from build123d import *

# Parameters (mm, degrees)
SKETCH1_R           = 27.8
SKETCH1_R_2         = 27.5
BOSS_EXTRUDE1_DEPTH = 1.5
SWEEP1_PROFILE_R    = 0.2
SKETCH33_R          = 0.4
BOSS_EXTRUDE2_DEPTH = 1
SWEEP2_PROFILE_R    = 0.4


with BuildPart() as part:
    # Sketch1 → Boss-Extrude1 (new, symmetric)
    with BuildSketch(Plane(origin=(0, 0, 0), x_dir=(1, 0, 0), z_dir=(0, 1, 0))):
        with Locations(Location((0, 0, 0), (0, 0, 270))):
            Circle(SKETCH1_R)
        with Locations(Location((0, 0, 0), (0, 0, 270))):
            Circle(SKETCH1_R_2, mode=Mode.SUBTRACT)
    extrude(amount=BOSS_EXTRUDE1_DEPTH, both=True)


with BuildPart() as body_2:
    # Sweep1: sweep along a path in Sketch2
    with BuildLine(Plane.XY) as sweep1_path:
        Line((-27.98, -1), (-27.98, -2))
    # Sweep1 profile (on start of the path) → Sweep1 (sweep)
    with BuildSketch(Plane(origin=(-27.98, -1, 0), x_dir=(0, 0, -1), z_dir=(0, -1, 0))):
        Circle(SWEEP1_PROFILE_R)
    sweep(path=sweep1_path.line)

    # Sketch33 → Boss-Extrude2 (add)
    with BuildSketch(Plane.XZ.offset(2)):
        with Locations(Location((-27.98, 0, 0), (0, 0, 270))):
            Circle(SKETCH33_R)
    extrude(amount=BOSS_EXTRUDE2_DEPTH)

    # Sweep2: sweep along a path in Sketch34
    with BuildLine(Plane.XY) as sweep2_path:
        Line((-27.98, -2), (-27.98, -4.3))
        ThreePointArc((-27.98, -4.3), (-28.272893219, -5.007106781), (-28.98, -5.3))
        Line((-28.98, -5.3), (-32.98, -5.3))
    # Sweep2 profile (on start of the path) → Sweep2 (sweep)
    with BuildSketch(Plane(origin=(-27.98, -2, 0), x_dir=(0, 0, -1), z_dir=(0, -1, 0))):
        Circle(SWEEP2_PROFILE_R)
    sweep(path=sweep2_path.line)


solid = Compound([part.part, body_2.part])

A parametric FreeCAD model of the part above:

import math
import FreeCAD as App
import Part
import Sketcher
from FreeCAD import Vector

doc = App.newDocument("Part")
body = doc.addObject("PartDesign::Body", "Body")

# Sketch on XZ plane
sketch1 = body.newObject("Sketcher::SketchObject", "Sketch")
sketch1.AttachmentSupport = (doc.getObject("XZ_Plane"), [""])
sketch1.MapMode = "FlatFace"
sketch1.addGeometry(Part.Circle(Vector(0, 0, 0), Vector(0, 0, 1), 28), False)
sketch1.addGeometry(Part.Circle(Vector(0, 0, 0), Vector(0, 0, 1), 28), False)
sketch1.addConstraint(Sketcher.Constraint("Coincident", 0, 3, -1, 1))
sketch1.addConstraint(Sketcher.Constraint("Coincident", 1, 3, -1, 1))
sketch1.addConstraint(Sketcher.Constraint("Diameter", 1, 55.0))
sketch1.addConstraint(Sketcher.Constraint("Diameter", 0, 55.6))
pad1 = body.newObject("PartDesign::Pad", "Pad")
pad1.Profile = sketch1
pad1.Length = 3
pad1.Midplane = True
body2 = doc.addObject("PartDesign::Body", "Body001")

# Sketch on XZ plane
sketch2 = body2.newObject("Sketcher::SketchObject", "Sketch001")
sketch2.AttachmentSupport = (doc.getObject("XZ_Plane001"), [""])
sketch2.MapMode = "FlatFace"
sketch2.AttachmentOffset = App.Placement(Vector(0, 0, 1), App.Rotation())
sketch2.addGeometry(Part.Circle(Vector(-27.98, 0, 0), Vector(0, 0, 1), 0.2), False)
sketch2.addConstraint(Sketcher.Constraint("PointOnObject", 0, 3, -1))
sketch2.addConstraint(Sketcher.Constraint("Diameter", 0, 0.4))
sketch2.addConstraint(Sketcher.Constraint("DistanceX", 0, 3, -1, 1, 27.98))

# Sketch on XY plane
sketch3 = body2.newObject("Sketcher::SketchObject", "Sketch002")
sketch3.AttachmentSupport = (doc.getObject("XY_Plane001"), [""])
sketch3.MapMode = "FlatFace"
sketch3.addGeometry(Part.LineSegment(Vector(-28, -1, 0), Vector(-28, -2, 0)), False)
sketch3.addConstraint(Sketcher.Constraint("Vertical", 0))
sketch3.addConstraint(Sketcher.Constraint("DistanceY", 0, 2, 0, 1, 1.0))
sketch3.addConstraint(Sketcher.Constraint("DistanceY", 0, 1, -1, 1, 1.0))
sketch3.addConstraint(Sketcher.Constraint("DistanceX", 0, 1, -1, 1, 27.98))
doc.recompute()

additivepipe = body2.newObject("PartDesign::AdditivePipe", "AdditivePipe")
additivepipe.Profile = sketch2
additivepipe.Spine = (sketch3, ["Edge1"])

# Sketch on XZ plane
sketch4 = body2.newObject("Sketcher::SketchObject", "Sketch003")
sketch4.AttachmentSupport = (doc.getObject("XZ_Plane001"), [""])
sketch4.MapMode = "FlatFace"
sketch4.AttachmentOffset = App.Placement(Vector(0, 0, 2), App.Rotation())
sketch4.addGeometry(Part.Circle(Vector(-27.98, 0, 0), Vector(0, 0, 1), 0.4), False)
sketch4.addConstraint(Sketcher.Constraint("PointOnObject", 0, 3, -1))
sketch4.addConstraint(Sketcher.Constraint("Diameter", 0, 0.8))
sketch4.addConstraint(Sketcher.Constraint("DistanceX", 0, 3, -1, 1, 27.98))
pad2 = body2.newObject("PartDesign::Pad", "Pad001")
pad2.Profile = sketch4
pad2.Length = 1

# Sketch on XZ plane
sketch5 = body2.newObject("Sketcher::SketchObject", "Sketch004")
sketch5.AttachmentSupport = (doc.getObject("XZ_Plane001"), [""])
sketch5.MapMode = "FlatFace"
sketch5.AttachmentOffset = App.Placement(Vector(0, 0, 2), App.Rotation())
sketch5.addGeometry(Part.Circle(Vector(-27.98, 0, 0), Vector(0, 0, 1), 0.4), False)
sketch5.addConstraint(Sketcher.Constraint("PointOnObject", 0, 3, -1))
sketch5.addConstraint(Sketcher.Constraint("Diameter", 0, 0.8))
sketch5.addConstraint(Sketcher.Constraint("DistanceX", 0, 3, -1, 1, 27.98))

# Sketch on XY plane
sketch6 = body2.newObject("Sketcher::SketchObject", "Sketch005")
sketch6.AttachmentSupport = (doc.getObject("XY_Plane001"), [""])
sketch6.MapMode = "FlatFace"
sketch6.addGeometry(Part.LineSegment(Vector(-28, -2, 0), Vector(-28, -4.3, 0)), False)
sketch6.addGeometry(Part.ArcOfCircle(Part.Circle(Vector(-29, -4.3, 0), Vector(0, 0, 1), 1), math.radians(-90), math.radians(0)), False)
sketch6.addGeometry(Part.LineSegment(Vector(-29, -5.3, 0), Vector(-33, -5.3, 0)), False)
sketch6.addConstraint(Sketcher.Constraint("Tangent", 0, 2, 1, 2))
sketch6.addConstraint(Sketcher.Constraint("Tangent", 1, 1, 2, 1))
sketch6.addConstraint(Sketcher.Constraint("Vertical", 0))
sketch6.addConstraint(Sketcher.Constraint("Horizontal", 2))
sketch6.addConstraint(Sketcher.Constraint("Radius", 1, 1.0))
sketch6.addConstraint(Sketcher.Constraint("DistanceX", 2, 2, 2, 1, 4.0))
sketch6.addConstraint(Sketcher.Constraint("DistanceY", 0, 2, 0, 1, 2.3))
sketch6.addConstraint(Sketcher.Constraint("DistanceY", 0, 1, -1, 1, 2.0))
sketch6.addConstraint(Sketcher.Constraint("DistanceX", 1, 3, -1, 1, 28.98))
doc.recompute()

additivepipe2 = body2.newObject("PartDesign::AdditivePipe", "AdditivePipe001")
additivepipe2.Profile = sketch5
additivepipe2.Spine = (sketch6, ["Edge1", "Edge2", "Edge3"])

doc.recompute()
